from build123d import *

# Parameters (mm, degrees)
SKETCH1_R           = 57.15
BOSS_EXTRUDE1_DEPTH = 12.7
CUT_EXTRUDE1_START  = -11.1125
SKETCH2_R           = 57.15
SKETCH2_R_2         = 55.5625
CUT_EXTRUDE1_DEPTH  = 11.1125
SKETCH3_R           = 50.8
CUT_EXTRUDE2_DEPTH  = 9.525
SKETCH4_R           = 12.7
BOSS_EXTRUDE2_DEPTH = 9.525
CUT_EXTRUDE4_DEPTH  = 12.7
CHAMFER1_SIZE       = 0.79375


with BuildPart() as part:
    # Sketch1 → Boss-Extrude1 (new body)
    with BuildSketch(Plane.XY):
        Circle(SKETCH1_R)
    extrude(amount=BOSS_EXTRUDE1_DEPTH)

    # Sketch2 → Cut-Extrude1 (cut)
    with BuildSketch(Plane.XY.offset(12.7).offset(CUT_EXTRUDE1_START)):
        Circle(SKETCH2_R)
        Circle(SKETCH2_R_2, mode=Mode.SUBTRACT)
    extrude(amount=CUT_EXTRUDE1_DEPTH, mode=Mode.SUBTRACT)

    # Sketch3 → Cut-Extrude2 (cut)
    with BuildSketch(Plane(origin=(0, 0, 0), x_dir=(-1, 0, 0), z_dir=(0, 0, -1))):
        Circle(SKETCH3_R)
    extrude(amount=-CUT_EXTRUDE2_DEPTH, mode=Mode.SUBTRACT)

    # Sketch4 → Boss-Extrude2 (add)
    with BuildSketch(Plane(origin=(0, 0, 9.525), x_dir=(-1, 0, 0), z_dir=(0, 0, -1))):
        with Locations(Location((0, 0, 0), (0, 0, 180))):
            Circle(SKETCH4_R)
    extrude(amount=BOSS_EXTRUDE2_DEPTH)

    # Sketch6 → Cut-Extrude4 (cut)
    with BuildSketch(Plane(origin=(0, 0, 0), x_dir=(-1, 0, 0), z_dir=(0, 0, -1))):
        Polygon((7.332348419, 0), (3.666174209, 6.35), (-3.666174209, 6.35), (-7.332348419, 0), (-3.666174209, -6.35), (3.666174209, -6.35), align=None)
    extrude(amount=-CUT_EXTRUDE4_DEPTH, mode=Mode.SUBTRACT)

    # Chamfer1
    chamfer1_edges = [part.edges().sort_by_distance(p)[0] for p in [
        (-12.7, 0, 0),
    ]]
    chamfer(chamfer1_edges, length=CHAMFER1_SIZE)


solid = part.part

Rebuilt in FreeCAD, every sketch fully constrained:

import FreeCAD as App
import Part
import Sketcher
Q = App.Units.Quantity


def edges_at(feature, points):
    """Names of the edges that pass closest to the given points."""
    edges = feature.Shape.Edges
    near = lambda p: min(range(len(edges)), key=lambda i: edges[i].distToShape(Part.Vertex(*p))[0])
    return sorted({f"Edge{near(p) + 1}" for p in points})


def add_polygon(sketch, points):
    """Adds a closed chain of lines whose ends are joined by coincident constraints."""
    first, n = sketch.GeometryCount, len(points)
    for a, b in zip(points, points[1:] + points[:1]):
        sketch.addGeometry(Part.LineSegment(App.Vector(*a, 0), App.Vector(*b, 0)), False)
    for i in range(n):
        sketch.addConstraint(Sketcher.Constraint("Coincident", first + i, 2, first + (i + 1) % n, 1))

doc = App.newDocument("Part")
params = doc.addObject("Spreadsheet::Sheet", "Params")
for row, (alias, value) in enumerate([
    ("sketch1_diameter", "4.5 in"),
    ("pad1_length", "0.5 in"),
    ("sketch2_diameter", "4.5 in"),
    ("sketch2_diameter2", "4.375 in"),
    ("pocket1_length", "0.4375 in"),
    ("sketch3_diameter", "4 in"),
    ("pocket2_length", "0.375 in"),
    ("sketch4_diameter", "1 in"),
    ("pad2_length", "0.375 in"),
    ("pocket3_length", "0.5 in"),
    ("chamfer_size", "0.03125 in"),
], start=1):
    params.set(f"A{row}", alias)
    params.set(f"B{row}", "=" + value)
    params.setAlias(f"B{row}", alias)

body = doc.addObject("PartDesign::Body", "Body")

# Sketch on XY plane
sketch1 = body.newObject("Sketcher::SketchObject", "Sketch")
sketch1.AttachmentSupport = (doc.getObject("XY_Plane"), [""])
sketch1.MapMode = "FlatFace"
sketch1.addGeometry(Part.Circle(App.Vector(0, 0, 0), App.Vector(0, 0, 1), 57), False)
sketch1.addConstraint(Sketcher.Constraint("Coincident", 0, 3, -1, 1))
sketch1.addConstraint(Sketcher.Constraint("Diameter", 0, Q("4.5 in")))
sketch1.setExpression("Constraints[1]", "Params.sketch1_diameter")
pad1 = body.newObject("PartDesign::Pad", "Pad")
pad1.Profile = sketch1
pad1.setExpression("Length", "Params.pad1_length")

# Sketch on XY plane
sketch2 = body.newObject("Sketcher::SketchObject", "Sketch001")
sketch2.AttachmentSupport = (doc.getObject("XY_Plane"), [""])
sketch2.MapMode = "FlatFace"
sketch2.AttachmentOffset = App.Placement(App.Vector(0, 0, 0.0625 * 25.4), App.Rotation())
sketch2.addGeometry(Part.Circle(App.Vector(0, 0, 0), App.Vector(0, 0, 1), 57), False)
sketch2.addGeometry(Part.Circle(App.Vector(0, 0, 0), App.Vector(0, 0, 1), 56), False)
sketch2.addConstraint(Sketcher.Constraint("Coincident", 0, 3, -1, 1))
sketch2.addConstraint(Sketcher.Constraint("Coincident", 1, 3, -1, 1))
sketch2.addConstraint(Sketcher.Constraint("Diameter", 0, Q("4.5 in")))
sketch2.addConstraint(Sketcher.Constraint("Diameter", 1, Q("4.375 in")))
sketch2.setExpression("Constraints[2]", "Params.sketch2_diameter")
sketch2.setExpression("Constraints[3]", "Params.sketch2_diameter2")
pocket1 = body.newObject("PartDesign::Pocket", "Pocket")
pocket1.Profile = sketch2
pocket1.setExpression("Length", "Params.pocket1_length")
pocket1.Reversed = True

# Sketch on XY plane
sketch3 = body.newObject("Sketcher::SketchObject", "Sketch002")
sketch3.AttachmentSupport = (doc.getObject("XY_Plane"), [""])
sketch3.MapMode = "FlatFace"
sketch3.addGeometry(Part.Circle(App.Vector(0, 0, 0), App.Vector(0, 0, 1), 51), False)
sketch3.addConstraint(Sketcher.Constraint("Coincident", 0, 3, -1, 1))
sketch3.addConstraint(Sketcher.Constraint("Diameter", 0, Q("4 in")))
sketch3.setExpression("Constraints[1]", "Params.sketch3_diameter")
pocket2 = body.newObject("PartDesign::Pocket", "Pocket001")
pocket2.Profile = sketch3
pocket2.setExpression("Length", "Params.pocket2_length")
pocket2.Reversed = True

# Sketch on XY plane
sketch4 = body.newObject("Sketcher::SketchObject", "Sketch003")
sketch4.AttachmentSupport = (doc.getObject("XY_Plane"), [""])
sketch4.MapMode = "FlatFace"
sketch4.AttachmentOffset = App.Placement(App.Vector(0, 0, 0.375 * 25.4), App.Rotation())
sketch4.addGeometry(Part.Circle(App.Vector(0, 0, 0), App.Vector(0, 0, 1), 13), False)
sketch4.addConstraint(Sketcher.Constraint("Coincident", 0, 3, -1, 1))
sketch4.addConstraint(Sketcher.Constraint("Diameter", 0, Q("1 in")))
sketch4.setExpression("Constraints[1]", "Params.sketch4_diameter")
pad2 = body.newObject("PartDesign::Pad", "Pad001")
pad2.Profile = sketch4
pad2.setExpression("Length", "Params.pad2_length")
pad2.Reversed = True

# Sketch on XY plane
sketch5 = body.newObject("Sketcher::SketchObject", "Sketch004")
sketch5.AttachmentSupport = (doc.getObject("XY_Plane"), [""])
sketch5.MapMode = "FlatFace"
add_polygon(sketch5, [(-7, 0), (-4, 6), (4, 6), (7, 0), (4, -6), (-4, -6)])  # lines 0-5
sketch5.addConstraint(Sketcher.Constraint("Horizontal", 1))
sketch5.addConstraint(Sketcher.Constraint("Horizontal", 4))
sketch5.addConstraint(Sketcher.Constraint("Symmetric", 0, 2, 3, 2, -1, 1))
sketch5.addConstraint(Sketcher.Constraint("Symmetric", 2, 2, 5, 2, -1, 1))
sketch5.addConstraint(Sketcher.Constraint("PointOnObject", 2, 2, -1))
sketch5.addConstraint(Sketcher.Constraint("Parallel", 2, 5))
sketch5.addConstraint(Sketcher.Constraint("Vertical", 1, 2, 3, 2))
sketch5.addConstraint(Sketcher.Constraint("Angle", 0, Q("60 deg")))
sketch5.addConstraint(Sketcher.Constraint("DistanceY", 3, 2, 1, 2, Q("0.5 in")))
sketch5.addConstraint(Sketcher.Constraint("DistanceX", 1, 1, 1, 2, 7.332348))
pocket3 = body.newObject("PartDesign::Pocket", "Pocket002")
pocket3.Profile = sketch5
pocket3.setExpression("Length", "Params.pocket3_length")
pocket3.Reversed = True
doc.recompute()

chamfer = body.newObject("PartDesign::Chamfer", "Chamfer")
chamfer.Base = (pocket3, edges_at(pocket3, [(-12.7, 0, 0)]))
chamfer.setExpression("Size", "Params.chamfer_size")

doc.recompute()
